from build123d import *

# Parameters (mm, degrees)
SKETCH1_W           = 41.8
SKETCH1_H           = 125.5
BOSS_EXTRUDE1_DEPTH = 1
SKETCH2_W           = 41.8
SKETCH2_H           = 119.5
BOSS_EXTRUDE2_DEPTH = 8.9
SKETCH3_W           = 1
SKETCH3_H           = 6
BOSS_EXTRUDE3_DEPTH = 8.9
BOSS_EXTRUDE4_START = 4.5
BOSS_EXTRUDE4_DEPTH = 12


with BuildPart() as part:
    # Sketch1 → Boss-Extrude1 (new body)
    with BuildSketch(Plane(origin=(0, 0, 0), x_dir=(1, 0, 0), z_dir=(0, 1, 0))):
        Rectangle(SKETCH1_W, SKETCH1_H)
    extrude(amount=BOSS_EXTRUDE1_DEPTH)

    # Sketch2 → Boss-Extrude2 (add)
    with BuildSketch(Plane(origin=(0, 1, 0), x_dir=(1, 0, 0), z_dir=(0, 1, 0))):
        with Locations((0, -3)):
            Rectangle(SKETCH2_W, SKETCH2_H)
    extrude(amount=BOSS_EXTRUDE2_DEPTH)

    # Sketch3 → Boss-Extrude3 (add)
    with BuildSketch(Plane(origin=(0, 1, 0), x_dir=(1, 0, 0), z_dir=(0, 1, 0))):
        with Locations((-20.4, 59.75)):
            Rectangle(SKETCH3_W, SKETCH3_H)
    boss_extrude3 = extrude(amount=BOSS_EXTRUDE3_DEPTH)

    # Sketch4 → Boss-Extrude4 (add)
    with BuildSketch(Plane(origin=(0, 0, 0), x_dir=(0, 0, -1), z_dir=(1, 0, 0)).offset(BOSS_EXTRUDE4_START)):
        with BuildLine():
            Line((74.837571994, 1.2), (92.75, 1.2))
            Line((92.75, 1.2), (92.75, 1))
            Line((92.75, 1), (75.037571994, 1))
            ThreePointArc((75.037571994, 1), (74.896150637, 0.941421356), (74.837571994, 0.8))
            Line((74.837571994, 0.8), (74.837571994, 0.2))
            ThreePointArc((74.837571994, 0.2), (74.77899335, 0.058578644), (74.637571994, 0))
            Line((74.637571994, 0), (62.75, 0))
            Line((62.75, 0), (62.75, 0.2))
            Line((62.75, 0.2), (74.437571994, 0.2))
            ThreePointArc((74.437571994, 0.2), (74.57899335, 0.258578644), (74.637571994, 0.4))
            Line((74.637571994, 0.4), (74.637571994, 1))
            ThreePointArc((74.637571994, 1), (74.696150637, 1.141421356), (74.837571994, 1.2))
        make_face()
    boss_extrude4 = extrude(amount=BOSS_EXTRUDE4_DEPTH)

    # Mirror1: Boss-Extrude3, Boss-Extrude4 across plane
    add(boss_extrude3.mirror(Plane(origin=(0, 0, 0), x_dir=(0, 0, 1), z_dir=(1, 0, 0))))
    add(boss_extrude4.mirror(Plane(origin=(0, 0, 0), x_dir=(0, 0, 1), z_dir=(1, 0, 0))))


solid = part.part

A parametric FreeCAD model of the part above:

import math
import FreeCAD as App
import Part
import Sketcher
from FreeCAD import Vector
Q = App.Units.Quantity

doc = App.newDocument("Part")
body = doc.addObject("PartDesign::Body", "Body")

# Sketch on XZ plane
sketch1 = doc.addObject("Sketcher::SketchObject", "Sketch")
body.addObject(sketch1)
sketch1.AttachmentSupport = (doc.XZ_Plane, [""])
sketch1.MapMode = "FlatFace"
sketch1.addGeometry([
    Part.LineSegment(Vector(-21, -63, 0), Vector(-21, 63, 0)),
    Part.LineSegment(Vector(-21, 63, 0), Vector(21, 63, 0)),
    Part.LineSegment(Vector(21, 63, 0), Vector(21, -63, 0)),
    Part.LineSegment(Vector(21, -63, 0), Vector(-21, -63, 0)),
], False)
sketch1.addConstraint([
    Sketcher.Constraint("Coincident", 0, 2, 1, 1),
    Sketcher.Constraint("Coincident", 1, 2, 2, 1),
    Sketcher.Constraint("Coincident", 2, 2, 3, 1),
    Sketcher.Constraint("Coincident", 3, 2, 0, 1),
    Sketcher.Constraint("Vertical", 0),
    Sketcher.Constraint("Horizontal", 1),
    Sketcher.Constraint("Vertical", 2),
    Sketcher.Constraint("Horizontal", 3),
    Sketcher.Constraint("Symmetric", 0, 2, 2, 2, -1, 1),
    Sketcher.Constraint("DistanceX", 1, 1, 1, 2, Q("41.8 mm")),
    Sketcher.Constraint("DistanceY", 0, 1, 0, 2, Q("125.5 mm")),
])
pad1 = doc.addObject("PartDesign::Pad", "Pad")
body.addObject(pad1)
pad1.Profile = sketch1
pad1.Length = 1
pad1.Reversed = True

# Sketch on XZ plane
sketch2 = doc.addObject("Sketcher::SketchObject", "Sketch001")
body.addObject(sketch2)
sketch2.AttachmentSupport = (doc.XZ_Plane, [""])
sketch2.MapMode = "FlatFace"
sketch2.AttachmentOffset = App.Placement(Vector(0, 0, -1), App.Rotation())
sketch2.addGeometry([
    Part.LineSegment(Vector(-21, -57, 0), Vector(-21, 63, 0)),
    Part.LineSegment(Vector(-21, 63, 0), Vector(21, 63, 0)),
    Part.LineSegment(Vector(21, 63, 0), Vector(21, -57, 0)),
    Part.LineSegment(Vector(21, -57, 0), Vector(-21, -57, 0)),
], False)
sketch2.addConstraint([
    Sketcher.Constraint("Coincident", 0, 2, 1, 1),
    Sketcher.Constraint("Coincident", 1, 2, 2, 1),
    Sketcher.Constraint("Coincident", 2, 2, 3, 1),
    Sketcher.Constraint("Coincident", 3, 2, 0, 1),
    Sketcher.Constraint("Vertical", 0),
    Sketcher.Constraint("Horizontal", 1),
    Sketcher.Constraint("Vertical", 2),
    Sketcher.Constraint("Horizontal", 3),
    Sketcher.Constraint("DistanceX", 1, 1, 1, 2, Q("41.8 mm")),
    Sketcher.Constraint("DistanceY", 0, 1, 0, 2, Q("119.5 mm")),
    Sketcher.Constraint("DistanceX", 0, 2, -1, 1, Q("20.9 mm")),
    Sketcher.Constraint("DistanceY", -1, 1, 0, 2, Q("62.75 mm")),
])
pad2 = doc.addObject("PartDesign::Pad", "Pad001")
body.addObject(pad2)
pad2.Profile = sketch2
pad2.Length = 8.9
pad2.Reversed = True

# Sketch on XZ plane
sketch3 = doc.addObject("Sketcher::SketchObject", "Sketch002")
body.addObject(sketch3)
sketch3.AttachmentSupport = (doc.XZ_Plane, [""])
sketch3.MapMode = "FlatFace"
sketch3.AttachmentOffset = App.Placement(Vector(0, 0, -1), App.Rotation())
sketch3.addGeometry([
    Part.LineSegment(Vector(-20.9, -62.8, 0), Vector(-20.9, -56.8, 0)),
    Part.LineSegment(Vector(-20.9, -56.8, 0), Vector(-19.9, -56.8, 0)),
    Part.LineSegment(Vector(-19.9, -56.8, 0), Vector(-19.9, -62.8, 0)),
    Part.LineSegment(Vector(-19.9, -62.8, 0), Vector(-20.9, -62.8, 0)),
], False)
sketch3.addConstraint([
    Sketcher.Constraint("Coincident", 0, 2, 1, 1),
    Sketcher.Constraint("Coincident", 1, 2, 2, 1),
    Sketcher.Constraint("Coincident", 2, 2, 3, 1),
    Sketcher.Constraint("Coincident", 3, 2, 0, 1),
    Sketcher.Constraint("Vertical", 0),
    Sketcher.Constraint("Horizontal", 1),
    Sketcher.Constraint("Vertical", 2),
    Sketcher.Constraint("Horizontal", 3),
    Sketcher.Constraint("DistanceX", 1, 1, 1, 2, Q("1 mm")),
    Sketcher.Constraint("DistanceY", 0, 1, 0, 2, Q("6 mm")),
    Sketcher.Constraint("DistanceX", 0, 2, -1, 1, Q("20.9 mm")),
    Sketcher.Constraint("DistanceY", 0, 2, -1, 1, Q("56.75 mm")),
])
pad3 = doc.addObject("PartDesign::Pad", "Pad002")
body.addObject(pad3)
pad3.Profile = sketch3
pad3.Length = 8.9
pad3.Reversed = True

# Sketch on YZ plane
sketch4 = doc.addObject("Sketcher::SketchObject", "Sketch003")
body.addObject(sketch4)
sketch4.AttachmentSupport = (doc.YZ_Plane, [""])
sketch4.MapMode = "FlatFace"
sketch4.AttachmentOffset = App.Placement(Vector(0, 0, 4.5), App.Rotation())
sketch4.addGeometry([
    Part.LineSegment(Vector(1.2, -92.75, 0), Vector(1.2, -74.84, 0)),  # 0
    Part.ArcOfCircle(Part.Circle(Vector(1, -74.84, 0), Vector(0, 0, 1), 0.2), math.radians(0), math.radians(90)),  # 1
    Part.LineSegment(Vector(1, -74.64, 0), Vector(0.4, -74.64, 0)),  # 2
    Part.ArcOfCircle(Part.Circle(Vector(0.4, -74.44, 0), Vector(0, 0, 1), 0.2), math.radians(-180), math.radians(-90)),  # 3
    Part.LineSegment(Vector(0.2, -74.44, 0), Vector(0.2, -62.75, 0)),  # 4
    Part.LineSegment(Vector(0.2, -62.75, 0), Vector(0, -62.75, 0)),  # 5
    Part.LineSegment(Vector(0, -62.75, 0), Vector(0, -74.64, 0)),  # 6
    Part.ArcOfCircle(Part.Circle(Vector(0.2, -74.64, 0), Vector(0, 0, 1), 0.2), math.radians(-180), math.radians(-90)),  # 7
    Part.LineSegment(Vector(0.2, -74.84, 0), Vector(0.8, -74.84, 0)),  # 8
    Part.ArcOfCircle(Part.Circle(Vector(0.8, -75.04, 0), Vector(0, 0, 1), 0.2), math.radians(0), math.radians(90)),  # 9
    Part.LineSegment(Vector(1, -75.04, 0), Vector(1, -92.75, 0)),  # 10
    Part.LineSegment(Vector(1, -92.75, 0), Vector(1.2, -92.75, 0)),  # 11
], False)
sketch4.addConstraint([
    Sketcher.Constraint("Tangent", 0, 2, 1, 1),
    Sketcher.Constraint("Tangent", 1, 2, 2, 1),
    Sketcher.Constraint("Tangent", 2, 2, 3, 2),
    Sketcher.Constraint("Tangent", 3, 1, 4, 1),
    Sketcher.Constraint("Coincident", 4, 2, 5, 1),
    Sketcher.Constraint("Coincident", 5, 2, 6, 1),
    Sketcher.Constraint("Tangent", 6, 2, 7, 1),
    Sketcher.Constraint("Tangent", 7, 2, 8, 1),
    Sketcher.Constraint("Tangent", 8, 2, 9, 2),
    Sketcher.Constraint("Tangent", 9, 1, 10, 1),
    Sketcher.Constraint("Coincident", 10, 2, 11, 1),
    Sketcher.Constraint("Coincident", 11, 2, 0, 1),
    Sketcher.Constraint("Vertical", 0),
    Sketcher.Constraint("Horizontal", 2),
    Sketcher.Constraint("Vertical", 4),
    Sketcher.Constraint("Horizontal", 5),
    Sketcher.Constraint("Vertical", 6),
    Sketcher.Constraint("Horizontal", 8),
    Sketcher.Constraint("Vertical", 10),
    Sketcher.Constraint("Horizontal", 11),
    Sketcher.Constraint("Equal", 1, 3),
    Sketcher.Constraint("Equal", 3, 7),
    Sketcher.Constraint("Equal", 7, 9),
    Sketcher.Constraint("PointOnObject", 5, 2, -2),
    Sketcher.Constraint("Horizontal", 7, 3, 1, 2),
    Sketcher.Constraint("Vertical", 7, 3, 3, 1),
    Sketcher.Constraint("Vertical", 1, 2, 9, 1),
    Sketcher.Constraint("Radius", 1, Q("0.2 mm")),
    Sketcher.Constraint("DistanceX", 2, 2, 2, 1, Q("0.6 mm")),
    Sketcher.Constraint("DistanceY", 4, 2, -1, 1, Q("62.75 mm")),
    Sketcher.Constraint("DistanceY", 10, 2, -1, 1, Q("92.75 mm")),
    Sketcher.Constraint("DistanceY", 0, 1, 0, 2, Q("17.912428 mm")),
])
pad4 = doc.addObject("PartDesign::Pad", "Pad003")
body.addObject(pad4)
pad4.Profile = sketch4
pad4.Length = 12
doc.recompute()

mirrored = doc.addObject("PartDesign::Mirrored", "Mirrored")
body.addObject(mirrored)
mirrored.Originals = [pad3, pad4]
mirrored.MirrorPlane = (doc.YZ_Plane, [""])
body.Tip = mirrored

doc.recompute()
